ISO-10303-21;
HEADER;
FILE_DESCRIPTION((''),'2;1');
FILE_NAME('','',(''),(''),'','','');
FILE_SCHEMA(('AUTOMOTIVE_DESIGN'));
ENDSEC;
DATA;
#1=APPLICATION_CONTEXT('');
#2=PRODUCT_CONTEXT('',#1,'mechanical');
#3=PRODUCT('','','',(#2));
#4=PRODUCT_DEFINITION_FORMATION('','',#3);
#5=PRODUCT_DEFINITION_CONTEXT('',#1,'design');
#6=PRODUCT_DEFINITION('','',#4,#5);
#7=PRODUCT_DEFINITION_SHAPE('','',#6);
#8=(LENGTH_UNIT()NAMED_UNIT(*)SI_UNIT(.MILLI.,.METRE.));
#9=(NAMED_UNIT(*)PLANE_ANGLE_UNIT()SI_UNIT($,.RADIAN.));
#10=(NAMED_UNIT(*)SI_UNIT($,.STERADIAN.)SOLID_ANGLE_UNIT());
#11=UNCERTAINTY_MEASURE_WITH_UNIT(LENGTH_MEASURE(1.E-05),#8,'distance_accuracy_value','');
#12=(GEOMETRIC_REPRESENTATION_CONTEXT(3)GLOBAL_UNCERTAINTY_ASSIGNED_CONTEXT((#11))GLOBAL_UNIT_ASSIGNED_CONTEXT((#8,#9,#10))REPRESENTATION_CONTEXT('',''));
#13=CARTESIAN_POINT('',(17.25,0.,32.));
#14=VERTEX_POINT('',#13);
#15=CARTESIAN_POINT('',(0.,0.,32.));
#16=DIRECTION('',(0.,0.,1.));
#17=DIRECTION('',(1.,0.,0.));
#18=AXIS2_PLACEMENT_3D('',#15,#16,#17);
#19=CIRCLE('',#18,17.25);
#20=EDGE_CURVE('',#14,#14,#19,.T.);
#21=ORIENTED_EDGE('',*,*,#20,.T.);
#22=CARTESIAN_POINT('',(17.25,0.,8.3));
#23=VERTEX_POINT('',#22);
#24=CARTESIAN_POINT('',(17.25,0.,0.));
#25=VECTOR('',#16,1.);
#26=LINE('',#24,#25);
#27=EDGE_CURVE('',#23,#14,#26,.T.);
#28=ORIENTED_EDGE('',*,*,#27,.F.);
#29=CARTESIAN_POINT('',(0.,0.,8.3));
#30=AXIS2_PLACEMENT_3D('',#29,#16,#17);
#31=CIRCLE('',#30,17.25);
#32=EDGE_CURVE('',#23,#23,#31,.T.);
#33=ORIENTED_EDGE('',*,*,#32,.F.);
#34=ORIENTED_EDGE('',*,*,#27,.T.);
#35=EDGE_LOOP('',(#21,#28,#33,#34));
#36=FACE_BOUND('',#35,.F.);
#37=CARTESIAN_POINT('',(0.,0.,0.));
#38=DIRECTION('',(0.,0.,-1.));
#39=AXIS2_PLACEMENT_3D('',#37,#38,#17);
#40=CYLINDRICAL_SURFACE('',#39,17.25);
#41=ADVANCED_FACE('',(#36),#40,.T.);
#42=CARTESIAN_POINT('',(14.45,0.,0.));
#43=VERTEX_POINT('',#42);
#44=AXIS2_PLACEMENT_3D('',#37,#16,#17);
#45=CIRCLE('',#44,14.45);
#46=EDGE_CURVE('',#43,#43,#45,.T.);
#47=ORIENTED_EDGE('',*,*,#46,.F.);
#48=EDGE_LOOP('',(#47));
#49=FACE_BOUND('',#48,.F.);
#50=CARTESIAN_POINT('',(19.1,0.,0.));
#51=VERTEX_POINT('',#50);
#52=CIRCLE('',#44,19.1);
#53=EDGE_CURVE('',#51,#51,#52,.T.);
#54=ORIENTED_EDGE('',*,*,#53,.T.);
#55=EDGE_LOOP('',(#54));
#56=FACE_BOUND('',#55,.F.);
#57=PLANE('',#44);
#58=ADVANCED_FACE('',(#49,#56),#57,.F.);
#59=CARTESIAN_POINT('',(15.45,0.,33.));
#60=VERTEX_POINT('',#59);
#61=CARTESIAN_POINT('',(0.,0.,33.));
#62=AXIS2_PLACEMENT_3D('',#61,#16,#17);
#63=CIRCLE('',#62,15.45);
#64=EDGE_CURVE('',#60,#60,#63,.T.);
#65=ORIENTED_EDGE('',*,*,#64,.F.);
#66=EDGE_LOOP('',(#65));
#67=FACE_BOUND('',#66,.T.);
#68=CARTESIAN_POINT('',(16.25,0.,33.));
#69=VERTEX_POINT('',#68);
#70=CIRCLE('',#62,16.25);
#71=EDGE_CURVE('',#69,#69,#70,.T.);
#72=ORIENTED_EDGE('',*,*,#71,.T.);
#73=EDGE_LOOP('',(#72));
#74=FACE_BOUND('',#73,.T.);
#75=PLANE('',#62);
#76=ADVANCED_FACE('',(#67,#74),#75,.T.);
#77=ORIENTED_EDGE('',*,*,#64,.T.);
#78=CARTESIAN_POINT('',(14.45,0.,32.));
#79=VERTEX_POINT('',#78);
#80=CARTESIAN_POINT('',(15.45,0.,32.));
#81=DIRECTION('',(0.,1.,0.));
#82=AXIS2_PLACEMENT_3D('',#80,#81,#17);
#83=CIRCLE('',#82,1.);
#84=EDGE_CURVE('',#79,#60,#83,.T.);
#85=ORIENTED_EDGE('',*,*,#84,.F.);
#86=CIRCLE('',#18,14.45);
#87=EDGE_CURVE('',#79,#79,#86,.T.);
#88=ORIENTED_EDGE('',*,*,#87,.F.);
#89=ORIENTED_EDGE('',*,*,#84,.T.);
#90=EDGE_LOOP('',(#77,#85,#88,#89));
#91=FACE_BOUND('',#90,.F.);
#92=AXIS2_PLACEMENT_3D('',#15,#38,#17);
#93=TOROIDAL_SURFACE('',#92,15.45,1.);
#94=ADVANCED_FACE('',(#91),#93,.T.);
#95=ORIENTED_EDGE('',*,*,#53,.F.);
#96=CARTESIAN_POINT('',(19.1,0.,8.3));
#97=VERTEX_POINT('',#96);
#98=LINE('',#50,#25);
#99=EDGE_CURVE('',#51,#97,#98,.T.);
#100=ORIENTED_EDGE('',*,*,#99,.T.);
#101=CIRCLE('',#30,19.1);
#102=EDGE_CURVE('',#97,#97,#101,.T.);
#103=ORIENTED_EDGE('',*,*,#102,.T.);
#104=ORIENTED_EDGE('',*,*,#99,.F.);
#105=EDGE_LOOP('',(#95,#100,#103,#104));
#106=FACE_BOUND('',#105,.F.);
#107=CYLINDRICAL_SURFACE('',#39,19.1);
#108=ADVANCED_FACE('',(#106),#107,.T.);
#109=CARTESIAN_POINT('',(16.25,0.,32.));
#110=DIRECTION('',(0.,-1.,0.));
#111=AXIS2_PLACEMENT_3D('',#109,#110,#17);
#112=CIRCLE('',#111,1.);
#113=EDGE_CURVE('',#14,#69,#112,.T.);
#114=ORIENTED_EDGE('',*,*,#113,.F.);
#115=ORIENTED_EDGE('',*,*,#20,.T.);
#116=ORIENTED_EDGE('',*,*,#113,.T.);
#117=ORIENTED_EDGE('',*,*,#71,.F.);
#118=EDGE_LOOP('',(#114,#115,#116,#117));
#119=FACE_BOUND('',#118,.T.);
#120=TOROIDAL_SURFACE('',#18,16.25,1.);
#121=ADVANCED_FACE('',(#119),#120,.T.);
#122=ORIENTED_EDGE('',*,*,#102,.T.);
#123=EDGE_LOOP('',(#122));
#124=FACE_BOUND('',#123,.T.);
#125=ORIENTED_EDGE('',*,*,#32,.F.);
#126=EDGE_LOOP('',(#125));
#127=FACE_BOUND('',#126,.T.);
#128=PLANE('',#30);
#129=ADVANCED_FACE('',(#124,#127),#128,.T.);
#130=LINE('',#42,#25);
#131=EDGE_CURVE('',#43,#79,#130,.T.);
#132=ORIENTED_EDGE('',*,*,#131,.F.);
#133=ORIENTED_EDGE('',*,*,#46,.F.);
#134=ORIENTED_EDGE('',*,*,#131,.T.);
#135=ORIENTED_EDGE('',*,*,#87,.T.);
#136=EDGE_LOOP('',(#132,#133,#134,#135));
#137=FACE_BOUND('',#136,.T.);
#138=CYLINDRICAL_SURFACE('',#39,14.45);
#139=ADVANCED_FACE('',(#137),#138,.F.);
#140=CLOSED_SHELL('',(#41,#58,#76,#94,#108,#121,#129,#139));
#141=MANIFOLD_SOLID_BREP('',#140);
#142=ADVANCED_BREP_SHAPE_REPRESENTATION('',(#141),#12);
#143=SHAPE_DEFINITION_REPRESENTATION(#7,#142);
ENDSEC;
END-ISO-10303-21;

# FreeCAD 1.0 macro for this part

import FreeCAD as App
import Part
import Sketcher


def edges_at(feature, points):
    """Names of the edges that pass closest to the given points."""
    edges = feature.Shape.Edges
    near = lambda p: min(range(len(edges)), key=lambda i: edges[i].distToShape(Part.Vertex(*p))[0])
    return sorted({f"Edge{near(p) + 1}" for p in points})

doc = App.newDocument("Part")
body = doc.addObject("PartDesign::Body", "Body")

# Sketch on XY plane
sketch1 = body.newObject("Sketcher::SketchObject", "Sketch")
sketch1.AttachmentSupport = (doc.getObject("XY_Plane"), [""])
sketch1.MapMode = "FlatFace"
sketch1.addGeometry([
    Part.Circle(App.Vector(0, 0, 0), App.Vector(0, 0, 1), 17),
    Part.Circle(App.Vector(0, 0, 0), App.Vector(0, 0, 1), 14),
], False)
sketch1.addConstraint([
    Sketcher.Constraint("Coincident", 0, 3, -1, 1),
    Sketcher.Constraint("Coincident", 1, 3, -1, 1),
    Sketcher.Constraint("Diameter", 0, 34.5),
    Sketcher.Constraint("Diameter", 1, 28.9),
])
pad1 = body.newObject("PartDesign::Pad", "Pad")
pad1.Profile = sketch1
pad1.Length = 33

# Sketch on XY plane
sketch2 = body.newObject("Sketcher::SketchObject", "Sketch001")
sketch2.AttachmentSupport = (doc.getObject("XY_Plane"), [""])
sketch2.MapMode = "FlatFace"
sketch2.addGeometry([
    Part.Circle(App.Vector(0, 0, 0), App.Vector(0, 0, 1), 19),
    Part.Circle(App.Vector(0, 0, 0), App.Vector(0, 0, 1), 17),
], False)
sketch2.addConstraint([
    Sketcher.Constraint("Coincident", 0, 3, -1, 1),
    Sketcher.Constraint("Coincident", 1, 3, -1, 1),
    Sketcher.Constraint("Diameter", 0, 38.2),
    Sketcher.Constraint("Diameter", 1, 34.5),
])
pad2 = body.newObject("PartDesign::Pad", "Pad001")
pad2.Profile = sketch2
pad2.Length = 8.3
doc.recompute()

fillet = body.newObject("PartDesign::Fillet", "Fillet")
fillet.Base = (pad2, edges_at(pad2, [(-17.25, 0, 33), (-14.45, 0, 33)]))
fillet.Radius = 1

doc.recompute()
